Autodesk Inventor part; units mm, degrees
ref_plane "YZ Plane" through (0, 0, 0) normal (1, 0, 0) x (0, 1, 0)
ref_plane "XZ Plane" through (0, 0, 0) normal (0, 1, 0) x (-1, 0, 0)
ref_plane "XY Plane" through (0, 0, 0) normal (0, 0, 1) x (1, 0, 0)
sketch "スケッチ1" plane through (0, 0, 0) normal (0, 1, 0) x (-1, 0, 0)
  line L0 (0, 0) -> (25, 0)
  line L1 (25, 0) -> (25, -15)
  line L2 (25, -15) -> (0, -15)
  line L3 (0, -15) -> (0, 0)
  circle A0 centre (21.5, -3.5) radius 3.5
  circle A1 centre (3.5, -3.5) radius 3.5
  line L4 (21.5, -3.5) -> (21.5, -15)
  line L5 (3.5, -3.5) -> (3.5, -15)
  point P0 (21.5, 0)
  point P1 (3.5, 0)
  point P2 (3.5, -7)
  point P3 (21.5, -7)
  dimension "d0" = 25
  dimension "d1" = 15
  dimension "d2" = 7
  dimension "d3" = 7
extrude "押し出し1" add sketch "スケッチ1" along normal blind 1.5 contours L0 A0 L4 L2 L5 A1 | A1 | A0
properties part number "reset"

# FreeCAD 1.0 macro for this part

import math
import FreeCAD as App
import Part
import Sketcher

V = App.Vector

doc = App.newDocument("Part")
params = doc.addObject("Spreadsheet::Sheet", "Params")
for row, (alias, value) in enumerate([
    ("sketch1_radius", "3.5 mm"),
    ("sketch1_width", "18 mm"),
    ("pad1_length", "1.5 mm"),
], start=1):
    params.set(f"A{row}", alias)
    params.set(f"B{row}", "=" + value)
    params.setAlias(f"B{row}", alias)

body = doc.addObject("PartDesign::Body", "Body")

sketch1 = doc.addObject("Sketcher::SketchObject", "Sketch")
body.addObject(sketch1)
sketch1.AttachmentSupport = (doc.XZ_Plane, [""])
sketch1.MapMode = "FlatFace"
sketch1.addGeometry([
    Part.LineSegment(V(-21.5, 0, 0), V(-3.5, 0, 0)),
    Part.ArcOfCircle(Part.Circle(V(-3.5, -3.5, 0), V(0, 0, 1), 3.5), math.radians(-90), math.radians(90)),
    Part.LineSegment(V(-3.5, -7, 0), V(-3.5, -15, 0)),
    Part.LineSegment(V(-3.5, -15, 0), V(-21.5, -15, 0)),
    Part.LineSegment(V(-21.5, -15, 0), V(-21.5, -7, 0)),
    Part.ArcOfCircle(Part.Circle(V(-21.5, -3.5, 0), V(0, 0, 1), 3.5), math.radians(90), math.radians(270)),
], False)
sketch1.addConstraint([
    Sketcher.Constraint("Tangent", 0, 2, 1, 2),
    Sketcher.Constraint("Coincident", 1, 1, 2, 1),
    Sketcher.Constraint("Coincident", 2, 2, 3, 1),
    Sketcher.Constraint("Coincident", 3, 2, 4, 1),
    Sketcher.Constraint("Coincident", 4, 2, 5, 2),
    Sketcher.Constraint("Tangent", 5, 1, 0, 1),
    Sketcher.Constraint("Horizontal", 0),
    Sketcher.Constraint("Vertical", 2),
    Sketcher.Constraint("Horizontal", 3),
    Sketcher.Constraint("Vertical", 4),
    Sketcher.Constraint("Equal", 1, 5),
    Sketcher.Constraint("PointOnObject", 0, 2, -1),
    Sketcher.Constraint("Vertical", 0, 2, 1, 1),
    Sketcher.Constraint("Vertical", 5, 3, 3, 2),
    Sketcher.Constraint("Radius", 1, 3.5),
    Sketcher.Constraint("DistanceY", 2, 2, -1, 1, 15.0),
    Sketcher.Constraint("DistanceX", 0, 1, 0, 2, 18.0),
    Sketcher.Constraint("DistanceX", 1, 3, -1, 1, 3.5),
])
sketch1.setExpression("Constraints[14]", "Params.sketch1_radius")
sketch1.setExpression("Constraints[16]", "Params.sketch1_width")
pad1 = doc.addObject("PartDesign::Pad", "Pad")
body.addObject(pad1)
pad1.Profile = sketch1
pad1.setExpression("Length", "Params.pad1_length")
pad1.Reversed = True

doc.recompute()
